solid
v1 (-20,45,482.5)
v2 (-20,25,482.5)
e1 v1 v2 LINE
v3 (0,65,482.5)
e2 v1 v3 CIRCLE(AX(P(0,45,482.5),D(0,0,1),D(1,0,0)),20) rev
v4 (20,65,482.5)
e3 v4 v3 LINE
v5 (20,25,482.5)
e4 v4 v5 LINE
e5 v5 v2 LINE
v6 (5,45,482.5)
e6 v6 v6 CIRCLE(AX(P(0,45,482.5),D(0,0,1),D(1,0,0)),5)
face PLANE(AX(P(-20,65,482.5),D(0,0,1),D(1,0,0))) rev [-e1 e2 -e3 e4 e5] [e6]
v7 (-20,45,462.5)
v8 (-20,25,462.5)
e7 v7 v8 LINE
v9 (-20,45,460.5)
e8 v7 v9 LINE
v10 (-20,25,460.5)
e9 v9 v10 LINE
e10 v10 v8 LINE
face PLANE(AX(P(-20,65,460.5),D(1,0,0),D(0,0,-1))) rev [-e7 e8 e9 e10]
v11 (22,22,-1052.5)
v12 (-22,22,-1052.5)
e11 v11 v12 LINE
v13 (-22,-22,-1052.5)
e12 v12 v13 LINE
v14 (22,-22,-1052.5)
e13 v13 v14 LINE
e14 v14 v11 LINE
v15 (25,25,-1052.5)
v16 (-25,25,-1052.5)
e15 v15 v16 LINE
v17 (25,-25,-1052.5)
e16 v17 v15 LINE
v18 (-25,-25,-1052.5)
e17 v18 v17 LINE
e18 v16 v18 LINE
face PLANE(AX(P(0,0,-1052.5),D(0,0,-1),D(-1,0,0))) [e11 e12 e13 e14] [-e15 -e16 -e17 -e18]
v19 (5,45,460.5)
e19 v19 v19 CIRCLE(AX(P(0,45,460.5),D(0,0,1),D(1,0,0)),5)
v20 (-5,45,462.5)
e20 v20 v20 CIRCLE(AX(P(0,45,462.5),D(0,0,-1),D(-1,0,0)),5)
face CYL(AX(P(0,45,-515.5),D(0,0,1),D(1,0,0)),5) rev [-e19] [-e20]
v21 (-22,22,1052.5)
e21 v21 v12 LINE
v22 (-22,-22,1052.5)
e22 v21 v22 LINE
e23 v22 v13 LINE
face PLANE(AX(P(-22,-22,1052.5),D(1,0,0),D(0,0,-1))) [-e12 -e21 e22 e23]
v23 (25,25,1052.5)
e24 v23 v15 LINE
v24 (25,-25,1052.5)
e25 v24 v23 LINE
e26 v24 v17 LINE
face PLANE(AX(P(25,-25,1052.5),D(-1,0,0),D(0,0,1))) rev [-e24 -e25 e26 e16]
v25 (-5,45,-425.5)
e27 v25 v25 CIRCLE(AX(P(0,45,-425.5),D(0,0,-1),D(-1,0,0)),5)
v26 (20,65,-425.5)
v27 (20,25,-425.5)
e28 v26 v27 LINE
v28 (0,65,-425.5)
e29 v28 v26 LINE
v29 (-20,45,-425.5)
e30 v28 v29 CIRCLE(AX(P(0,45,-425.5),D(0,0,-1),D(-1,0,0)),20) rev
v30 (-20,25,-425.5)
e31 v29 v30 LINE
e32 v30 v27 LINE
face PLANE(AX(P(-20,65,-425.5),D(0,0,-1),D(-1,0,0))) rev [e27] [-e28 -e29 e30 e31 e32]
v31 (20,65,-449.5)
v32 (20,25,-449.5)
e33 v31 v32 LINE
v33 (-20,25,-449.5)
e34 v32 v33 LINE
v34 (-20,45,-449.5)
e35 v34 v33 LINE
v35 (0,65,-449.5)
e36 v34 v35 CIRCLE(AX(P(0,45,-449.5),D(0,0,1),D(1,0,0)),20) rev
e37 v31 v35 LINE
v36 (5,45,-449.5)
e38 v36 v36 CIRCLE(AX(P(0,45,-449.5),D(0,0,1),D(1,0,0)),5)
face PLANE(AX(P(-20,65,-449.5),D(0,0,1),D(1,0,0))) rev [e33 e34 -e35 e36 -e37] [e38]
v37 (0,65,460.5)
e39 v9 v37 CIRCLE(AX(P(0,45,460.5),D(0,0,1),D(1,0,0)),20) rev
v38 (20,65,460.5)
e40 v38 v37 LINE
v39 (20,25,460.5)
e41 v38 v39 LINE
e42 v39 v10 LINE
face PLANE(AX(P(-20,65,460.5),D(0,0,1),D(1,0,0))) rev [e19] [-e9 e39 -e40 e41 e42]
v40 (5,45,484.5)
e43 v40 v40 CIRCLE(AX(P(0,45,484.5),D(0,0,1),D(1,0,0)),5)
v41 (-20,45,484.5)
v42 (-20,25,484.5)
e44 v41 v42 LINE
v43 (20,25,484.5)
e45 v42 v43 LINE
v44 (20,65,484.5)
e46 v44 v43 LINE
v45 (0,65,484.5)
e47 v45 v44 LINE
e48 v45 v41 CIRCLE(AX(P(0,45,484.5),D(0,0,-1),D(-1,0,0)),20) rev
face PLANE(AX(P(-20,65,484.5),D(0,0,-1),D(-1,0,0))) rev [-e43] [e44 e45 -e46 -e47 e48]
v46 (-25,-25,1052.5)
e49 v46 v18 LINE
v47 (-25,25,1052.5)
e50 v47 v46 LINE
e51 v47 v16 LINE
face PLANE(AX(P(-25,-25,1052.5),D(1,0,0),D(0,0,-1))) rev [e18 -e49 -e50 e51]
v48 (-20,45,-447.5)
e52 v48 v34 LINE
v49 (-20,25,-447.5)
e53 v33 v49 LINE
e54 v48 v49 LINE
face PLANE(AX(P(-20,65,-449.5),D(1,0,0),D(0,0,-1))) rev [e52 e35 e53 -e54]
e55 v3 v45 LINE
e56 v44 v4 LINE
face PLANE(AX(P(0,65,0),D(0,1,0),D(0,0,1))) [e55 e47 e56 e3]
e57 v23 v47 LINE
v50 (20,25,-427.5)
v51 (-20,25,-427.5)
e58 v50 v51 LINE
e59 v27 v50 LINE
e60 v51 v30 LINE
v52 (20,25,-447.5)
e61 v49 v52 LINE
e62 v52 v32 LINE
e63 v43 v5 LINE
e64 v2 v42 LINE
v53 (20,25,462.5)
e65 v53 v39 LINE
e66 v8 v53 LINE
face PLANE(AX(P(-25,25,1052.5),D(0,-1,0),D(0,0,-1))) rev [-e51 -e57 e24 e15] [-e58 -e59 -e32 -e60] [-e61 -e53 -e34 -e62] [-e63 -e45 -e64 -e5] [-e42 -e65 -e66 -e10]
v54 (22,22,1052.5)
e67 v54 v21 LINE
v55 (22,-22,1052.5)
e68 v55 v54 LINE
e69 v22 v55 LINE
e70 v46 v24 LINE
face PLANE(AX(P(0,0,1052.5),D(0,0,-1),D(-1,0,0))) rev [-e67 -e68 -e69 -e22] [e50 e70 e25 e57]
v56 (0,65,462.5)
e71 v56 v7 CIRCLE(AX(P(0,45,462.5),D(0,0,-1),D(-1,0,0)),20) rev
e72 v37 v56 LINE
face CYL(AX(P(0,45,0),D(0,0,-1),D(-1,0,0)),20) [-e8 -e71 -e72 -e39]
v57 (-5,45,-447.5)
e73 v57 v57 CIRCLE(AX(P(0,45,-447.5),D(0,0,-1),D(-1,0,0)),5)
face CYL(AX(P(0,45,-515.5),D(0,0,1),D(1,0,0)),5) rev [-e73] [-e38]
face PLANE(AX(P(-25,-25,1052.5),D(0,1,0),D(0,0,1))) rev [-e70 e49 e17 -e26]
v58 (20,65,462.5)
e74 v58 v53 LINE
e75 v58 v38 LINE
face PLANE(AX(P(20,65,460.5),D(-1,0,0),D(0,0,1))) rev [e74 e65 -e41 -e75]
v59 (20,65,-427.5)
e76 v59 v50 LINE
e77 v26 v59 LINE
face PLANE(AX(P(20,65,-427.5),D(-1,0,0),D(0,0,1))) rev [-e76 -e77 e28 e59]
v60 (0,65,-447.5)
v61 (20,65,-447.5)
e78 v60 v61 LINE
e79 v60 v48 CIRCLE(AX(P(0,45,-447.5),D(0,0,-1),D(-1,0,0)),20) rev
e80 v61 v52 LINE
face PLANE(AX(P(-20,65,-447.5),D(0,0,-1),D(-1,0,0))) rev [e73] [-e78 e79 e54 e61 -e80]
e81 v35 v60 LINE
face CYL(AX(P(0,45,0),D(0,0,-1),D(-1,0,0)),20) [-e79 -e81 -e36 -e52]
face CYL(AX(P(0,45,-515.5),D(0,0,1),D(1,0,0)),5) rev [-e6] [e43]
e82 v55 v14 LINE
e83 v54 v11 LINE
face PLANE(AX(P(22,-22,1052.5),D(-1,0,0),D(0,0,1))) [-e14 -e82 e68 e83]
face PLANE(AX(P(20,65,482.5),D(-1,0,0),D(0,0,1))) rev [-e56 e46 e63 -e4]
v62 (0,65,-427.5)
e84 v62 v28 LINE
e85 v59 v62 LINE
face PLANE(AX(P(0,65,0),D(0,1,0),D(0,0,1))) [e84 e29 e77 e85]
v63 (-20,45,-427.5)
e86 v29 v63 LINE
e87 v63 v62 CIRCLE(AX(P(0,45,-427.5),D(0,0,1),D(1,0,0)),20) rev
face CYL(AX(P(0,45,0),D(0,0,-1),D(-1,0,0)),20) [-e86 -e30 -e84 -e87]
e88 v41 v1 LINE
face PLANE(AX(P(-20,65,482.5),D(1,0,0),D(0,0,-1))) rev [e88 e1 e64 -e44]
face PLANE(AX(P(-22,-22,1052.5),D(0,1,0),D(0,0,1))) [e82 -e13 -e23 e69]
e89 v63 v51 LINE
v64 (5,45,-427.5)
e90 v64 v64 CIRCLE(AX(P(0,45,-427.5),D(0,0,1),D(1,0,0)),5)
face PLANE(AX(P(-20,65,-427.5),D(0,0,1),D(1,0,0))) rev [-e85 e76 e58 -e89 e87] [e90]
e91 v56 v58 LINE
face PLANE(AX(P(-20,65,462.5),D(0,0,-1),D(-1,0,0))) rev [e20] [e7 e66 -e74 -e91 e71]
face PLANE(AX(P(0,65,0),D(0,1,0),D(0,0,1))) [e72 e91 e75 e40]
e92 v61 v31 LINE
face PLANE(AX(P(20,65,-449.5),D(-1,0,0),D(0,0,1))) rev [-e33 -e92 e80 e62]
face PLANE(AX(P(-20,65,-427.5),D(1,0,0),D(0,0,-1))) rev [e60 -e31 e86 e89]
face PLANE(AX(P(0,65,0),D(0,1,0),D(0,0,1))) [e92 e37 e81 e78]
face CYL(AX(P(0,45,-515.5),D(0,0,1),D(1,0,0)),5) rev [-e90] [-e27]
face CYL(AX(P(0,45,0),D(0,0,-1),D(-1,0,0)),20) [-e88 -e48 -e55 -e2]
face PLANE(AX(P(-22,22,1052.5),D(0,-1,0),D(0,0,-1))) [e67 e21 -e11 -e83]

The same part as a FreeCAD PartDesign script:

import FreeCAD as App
import Part
import Sketcher

V = App.Vector


def edges_at(feature, points):
    """Names of the edges that pass closest to the given points."""
    edges = feature.Shape.Edges
    near = lambda p: min(range(len(edges)), key=lambda i: edges[i].distToShape(Part.Vertex(*p))[0])
    return sorted({f"Edge{near(p) + 1}" for p in points})


def add_polygon(sketch, points):
    """Adds a closed chain of lines whose ends are joined by coincident constraints."""
    first, n = sketch.GeometryCount, len(points)
    for a, b in zip(points, points[1:] + points[:1]):
        sketch.addGeometry(Part.LineSegment(App.Vector(*a, 0), App.Vector(*b, 0)), False)
    for i in range(n):
        sketch.addConstraint(Sketcher.Constraint("Coincident", first + i, 2, first + (i + 1) % n, 1))

doc = App.newDocument("Part")
body = doc.addObject("PartDesign::Body", "Body")

sketch1 = doc.addObject("Sketcher::SketchObject", "Sketch")
body.addObject(sketch1)
sketch1.AttachmentSupport = (doc.XY_Plane, [""])
sketch1.MapMode = "FlatFace"
add_polygon(sketch1, [(-25, 25), (-25, -25), (25, -25), (25, 25)])
add_polygon(sketch1, [(22, -22), (-22, -22), (-22, 22), (22, 22)])
sketch1.addConstraint([
    Sketcher.Constraint("Vertical", 0),
    Sketcher.Constraint("Horizontal", 1),
    Sketcher.Constraint("Vertical", 2),
    Sketcher.Constraint("Horizontal", 3),
    Sketcher.Constraint("Horizontal", 4),
    Sketcher.Constraint("Vertical", 5),
    Sketcher.Constraint("Horizontal", 6),
    Sketcher.Constraint("Vertical", 7),
    Sketcher.Constraint("Symmetric", 0, 2, 2, 2, -1, 1),
    Sketcher.Constraint("Symmetric", 4, 2, 6, 2, -1, 1),
    Sketcher.Constraint("Equal", 3, 0),
    Sketcher.Constraint("Equal", 6, 5),
    Sketcher.Constraint("DistanceX", 1, 1, 1, 2, 50.0),
    Sketcher.Constraint("DistanceX", 4, 2, 4, 1, 44.0),
])
pad1 = doc.addObject("PartDesign::Pad", "Pad")
body.addObject(pad1)
pad1.Profile = sketch1
pad1.Length = 2105
pad1.Midplane = True

sketch2 = doc.addObject("Sketcher::SketchObject", "Sketch001")
body.addObject(sketch2)
sketch2.AttachmentSupport = (doc.XZ_Plane, [""])
sketch2.MapMode = "FlatFace"
sketch2.AttachmentOffset = App.Placement(V(0, 0, -25), App.Rotation())
add_polygon(sketch2, [(-20, -449.5), (-20, -447.5), (20, -447.5), (20, -449.5)])
add_polygon(sketch2, [(-20, -427.5), (-20, -425.5), (20, -425.5), (20, -427.5)])
add_polygon(sketch2, [(-20, 460.5), (-20, 462.5), (20, 462.5), (20, 460.5)])
add_polygon(sketch2, [(-20, 482.5), (-20, 484.5), (20, 484.5), (20, 482.5)])
sketch2.addConstraint([
    Sketcher.Constraint("Vertical", 0),
    Sketcher.Constraint("Horizontal", 1),
    Sketcher.Constraint("Vertical", 2),
    Sketcher.Constraint("Horizontal", 3),
    Sketcher.Constraint("Vertical", 4),
    Sketcher.Constraint("Horizontal", 5),
    Sketcher.Constraint("Vertical", 6),
    Sketcher.Constraint("Horizontal", 7),
    Sketcher.Constraint("Vertical", 8),
    Sketcher.Constraint("Horizontal", 9),
    Sketcher.Constraint("Vertical", 10),
    Sketcher.Constraint("Horizontal", 11),
    Sketcher.Constraint("Vertical", 12),
    Sketcher.Constraint("Horizontal", 13),
    Sketcher.Constraint("Vertical", 14),
    Sketcher.Constraint("Horizontal", 15),
    Sketcher.Constraint("Vertical", 3, 2, 4, 2),
    Sketcher.Constraint("Vertical", 2, 2, 5, 2),
    Sketcher.Constraint("Vertical", 7, 2, 8, 2),
    Sketcher.Constraint("Vertical", 6, 2, 9, 2),
    Sketcher.Constraint("Vertical", 11, 2, 12, 2),
    Sketcher.Constraint("Vertical", 10, 2, 13, 2),
    Sketcher.Constraint("Equal", 2, 4),
    Sketcher.Constraint("Equal", 6, 8),
    Sketcher.Constraint("Equal", 10, 12),
    Sketcher.Constraint("DistanceX", 1, 1, 1, 2, 40.0),
    Sketcher.Constraint("DistanceY", 0, 1, 0, 2, 2.0),
    Sketcher.Constraint("DistanceX", 0, 2, -1, 1, 20.0),
    Sketcher.Constraint("DistanceY", 0, 2, 4, 2, 22.0),
    Sketcher.Constraint("DistanceY", 4, 2, 8, 2, 888.0),
    Sketcher.Constraint("DistanceY", 8, 2, 12, 2, 22.0),
    Sketcher.Constraint("DistanceY", 0, 2, -1, 1, 447.5),
])
pad2 = doc.addObject("PartDesign::Pad", "Pad001")
body.addObject(pad2)
pad2.Profile = sketch2
pad2.Length = 40
pad2.Reversed = True

sketch3 = doc.addObject("Sketcher::SketchObject", "Sketch002")
body.addObject(sketch3)
sketch3.AttachmentSupport = (doc.XY_Plane, [""])
sketch3.MapMode = "FlatFace"
sketch3.AttachmentOffset = App.Placement(V(0, 0, 484.5), App.Rotation())
sketch3.addGeometry(Part.Circle(V(0, 45, 0), V(0, 0, 1), 5), False)
sketch3.addConstraint([
    Sketcher.Constraint("PointOnObject", 0, 3, -2),
    Sketcher.Constraint("Diameter", 0, 10.0),
    Sketcher.Constraint("DistanceY", -1, 1, 0, 3, 45.0),
])
pocket1 = doc.addObject("PartDesign::Pocket", "Pocket")
body.addObject(pocket1)
pocket1.Profile = sketch3
pocket1.Length = 1000
doc.recompute()

fillet = doc.addObject("PartDesign::Fillet", "Fillet")
body.addObject(fillet)
fillet.Base = (pocket1, edges_at(pocket1, [
    (-20, 65, -448.5),
    (-20, 65, -426.5),
    (-20, 65, 461.5),
    (-20, 65, 483.5),
]))
fillet.Radius = 20

doc.recompute()
